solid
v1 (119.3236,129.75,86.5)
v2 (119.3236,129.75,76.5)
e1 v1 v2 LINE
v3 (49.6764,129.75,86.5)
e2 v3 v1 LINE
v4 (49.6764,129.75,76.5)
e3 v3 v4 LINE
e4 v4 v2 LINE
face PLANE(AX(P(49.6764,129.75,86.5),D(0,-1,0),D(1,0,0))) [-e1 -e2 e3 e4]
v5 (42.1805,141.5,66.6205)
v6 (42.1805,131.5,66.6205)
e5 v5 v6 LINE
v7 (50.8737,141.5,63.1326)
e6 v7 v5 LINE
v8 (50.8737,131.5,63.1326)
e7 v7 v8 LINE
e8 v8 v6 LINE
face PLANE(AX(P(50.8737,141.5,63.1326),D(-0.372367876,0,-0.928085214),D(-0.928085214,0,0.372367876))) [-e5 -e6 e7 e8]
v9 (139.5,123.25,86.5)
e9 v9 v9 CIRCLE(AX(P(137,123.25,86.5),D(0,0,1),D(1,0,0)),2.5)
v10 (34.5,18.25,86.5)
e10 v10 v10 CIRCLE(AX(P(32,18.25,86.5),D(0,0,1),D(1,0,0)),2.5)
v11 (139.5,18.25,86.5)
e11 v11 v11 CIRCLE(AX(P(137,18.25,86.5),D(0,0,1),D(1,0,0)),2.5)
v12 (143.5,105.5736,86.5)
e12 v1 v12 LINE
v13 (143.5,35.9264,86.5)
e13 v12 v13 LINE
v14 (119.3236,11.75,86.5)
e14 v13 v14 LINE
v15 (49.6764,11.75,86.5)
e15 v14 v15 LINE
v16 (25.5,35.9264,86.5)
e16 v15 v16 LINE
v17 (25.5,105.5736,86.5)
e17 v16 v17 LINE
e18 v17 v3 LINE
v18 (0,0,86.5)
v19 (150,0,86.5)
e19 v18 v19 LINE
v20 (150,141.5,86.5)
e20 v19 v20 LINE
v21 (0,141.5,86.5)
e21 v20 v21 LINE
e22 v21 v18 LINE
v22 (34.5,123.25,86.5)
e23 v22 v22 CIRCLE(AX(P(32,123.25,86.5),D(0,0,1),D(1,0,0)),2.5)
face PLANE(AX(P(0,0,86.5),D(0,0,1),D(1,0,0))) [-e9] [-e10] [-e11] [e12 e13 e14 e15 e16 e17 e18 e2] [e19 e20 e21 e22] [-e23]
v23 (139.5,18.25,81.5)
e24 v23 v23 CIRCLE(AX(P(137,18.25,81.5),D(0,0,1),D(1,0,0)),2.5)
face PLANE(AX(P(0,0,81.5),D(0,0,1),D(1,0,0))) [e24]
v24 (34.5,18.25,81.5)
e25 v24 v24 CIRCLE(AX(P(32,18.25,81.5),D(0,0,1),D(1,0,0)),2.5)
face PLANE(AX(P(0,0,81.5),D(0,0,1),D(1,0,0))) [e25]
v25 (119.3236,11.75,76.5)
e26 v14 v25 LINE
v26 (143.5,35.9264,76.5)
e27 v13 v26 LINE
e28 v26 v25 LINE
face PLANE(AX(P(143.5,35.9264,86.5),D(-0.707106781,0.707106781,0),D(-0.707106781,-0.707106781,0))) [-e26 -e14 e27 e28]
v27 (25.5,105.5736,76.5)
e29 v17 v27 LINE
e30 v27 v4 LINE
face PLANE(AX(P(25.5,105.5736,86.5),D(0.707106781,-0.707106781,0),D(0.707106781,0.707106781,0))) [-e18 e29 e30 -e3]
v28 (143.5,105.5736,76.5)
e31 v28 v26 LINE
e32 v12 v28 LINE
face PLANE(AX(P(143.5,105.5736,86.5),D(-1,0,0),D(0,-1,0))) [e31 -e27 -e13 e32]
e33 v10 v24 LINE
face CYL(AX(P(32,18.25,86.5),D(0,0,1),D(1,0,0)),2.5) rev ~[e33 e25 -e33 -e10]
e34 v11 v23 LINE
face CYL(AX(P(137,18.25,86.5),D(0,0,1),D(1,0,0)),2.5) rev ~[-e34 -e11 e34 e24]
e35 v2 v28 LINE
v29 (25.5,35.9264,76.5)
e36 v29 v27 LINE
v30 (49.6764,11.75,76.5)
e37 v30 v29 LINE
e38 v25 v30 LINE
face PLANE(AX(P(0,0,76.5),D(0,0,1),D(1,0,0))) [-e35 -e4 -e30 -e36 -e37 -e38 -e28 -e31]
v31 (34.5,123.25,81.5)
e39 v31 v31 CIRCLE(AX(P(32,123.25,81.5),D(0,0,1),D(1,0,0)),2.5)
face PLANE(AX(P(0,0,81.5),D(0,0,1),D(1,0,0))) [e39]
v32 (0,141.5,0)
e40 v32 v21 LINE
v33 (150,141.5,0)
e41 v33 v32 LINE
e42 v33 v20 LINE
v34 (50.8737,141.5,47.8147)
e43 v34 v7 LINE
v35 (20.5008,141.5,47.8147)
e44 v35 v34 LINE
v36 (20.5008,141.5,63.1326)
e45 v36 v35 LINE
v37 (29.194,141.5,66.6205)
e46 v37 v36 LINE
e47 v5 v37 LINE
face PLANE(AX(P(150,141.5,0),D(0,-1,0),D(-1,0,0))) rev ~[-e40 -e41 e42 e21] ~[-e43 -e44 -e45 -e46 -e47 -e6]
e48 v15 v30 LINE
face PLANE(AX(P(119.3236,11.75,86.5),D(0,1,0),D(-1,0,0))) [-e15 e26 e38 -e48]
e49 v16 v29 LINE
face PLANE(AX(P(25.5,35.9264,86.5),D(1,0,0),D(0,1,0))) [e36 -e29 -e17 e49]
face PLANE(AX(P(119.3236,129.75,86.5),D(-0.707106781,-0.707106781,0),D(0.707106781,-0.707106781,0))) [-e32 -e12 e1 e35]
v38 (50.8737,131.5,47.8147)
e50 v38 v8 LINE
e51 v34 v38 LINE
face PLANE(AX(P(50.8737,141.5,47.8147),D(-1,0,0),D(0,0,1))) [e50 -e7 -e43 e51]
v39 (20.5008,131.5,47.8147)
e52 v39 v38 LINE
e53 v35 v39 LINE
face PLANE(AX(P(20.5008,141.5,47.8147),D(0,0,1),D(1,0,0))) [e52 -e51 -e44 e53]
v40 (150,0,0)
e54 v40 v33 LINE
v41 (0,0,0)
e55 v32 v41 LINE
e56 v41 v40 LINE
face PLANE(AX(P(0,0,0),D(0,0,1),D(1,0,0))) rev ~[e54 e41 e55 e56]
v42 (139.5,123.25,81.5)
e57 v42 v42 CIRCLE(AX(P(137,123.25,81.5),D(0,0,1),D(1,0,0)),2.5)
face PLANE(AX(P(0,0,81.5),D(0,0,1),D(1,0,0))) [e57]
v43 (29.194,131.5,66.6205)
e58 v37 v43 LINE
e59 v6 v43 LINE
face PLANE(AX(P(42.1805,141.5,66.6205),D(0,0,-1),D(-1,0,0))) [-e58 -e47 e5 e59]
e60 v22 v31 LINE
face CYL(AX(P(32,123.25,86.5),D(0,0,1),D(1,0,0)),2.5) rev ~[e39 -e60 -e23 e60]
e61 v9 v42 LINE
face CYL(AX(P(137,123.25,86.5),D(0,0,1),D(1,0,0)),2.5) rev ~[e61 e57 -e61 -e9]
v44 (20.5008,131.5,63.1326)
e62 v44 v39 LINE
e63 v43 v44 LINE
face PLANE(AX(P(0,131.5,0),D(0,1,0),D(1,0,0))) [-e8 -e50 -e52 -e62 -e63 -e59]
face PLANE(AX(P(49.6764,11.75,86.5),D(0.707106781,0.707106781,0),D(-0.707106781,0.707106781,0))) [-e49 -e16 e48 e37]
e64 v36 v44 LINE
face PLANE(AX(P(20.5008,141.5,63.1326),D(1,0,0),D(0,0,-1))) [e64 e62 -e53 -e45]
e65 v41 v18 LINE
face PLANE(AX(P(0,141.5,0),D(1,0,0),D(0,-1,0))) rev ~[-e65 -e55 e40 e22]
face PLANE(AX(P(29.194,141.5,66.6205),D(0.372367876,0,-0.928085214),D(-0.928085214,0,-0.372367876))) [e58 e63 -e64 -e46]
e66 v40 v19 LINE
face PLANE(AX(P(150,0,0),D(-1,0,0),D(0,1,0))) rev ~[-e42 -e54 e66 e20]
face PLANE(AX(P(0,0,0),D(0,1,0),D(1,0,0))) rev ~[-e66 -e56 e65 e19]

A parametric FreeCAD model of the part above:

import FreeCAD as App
import Part
import Sketcher

V = App.Vector
Q = App.Units.Quantity

doc = App.newDocument("Part")
body = doc.addObject("PartDesign::Body", "Body")

# Sketch on XY plane
sketch1 = body.newObject("Sketcher::SketchObject", "Sketch")
sketch1.AttachmentSupport = (doc.getObject("XY_Plane"), [""])
sketch1.MapMode = "FlatFace"
sketch1.addGeometry([
    Part.LineSegment(V(0, 141.5, 0), V(0, 0, 0)),
    Part.LineSegment(V(0, 0, 0), V(150, 0, 0)),
    Part.LineSegment(V(150, 0, 0), V(150, 141.5, 0)),
    Part.LineSegment(V(150, 141.5, 0), V(0, 141.5, 0)),
], False)
sketch1.addConstraint([
    Sketcher.Constraint("Coincident", 0, 2, 1, 1),
    Sketcher.Constraint("Coincident", 1, 2, 2, 1),
    Sketcher.Constraint("Coincident", 2, 2, 3, 1),
    Sketcher.Constraint("Coincident", 3, 2, 0, 1),
    Sketcher.Constraint("Vertical", 0),
    Sketcher.Constraint("Horizontal", 1),
    Sketcher.Constraint("Vertical", 2),
    Sketcher.Constraint("Horizontal", 3),
    Sketcher.Constraint("Coincident", 0, 2, -1, 1),
    Sketcher.Constraint("DistanceX", 1, 1, 1, 2, Q("150 mm")),
    Sketcher.Constraint("DistanceY", 0, 2, 0, 1, Q("141.5 mm")),
])
pad1 = body.newObject("PartDesign::Pad", "Pad")
pad1.Profile = sketch1
pad1.Length = 86.5

# Sketch on XY plane
sketch2 = body.newObject("Sketcher::SketchObject", "Sketch001")
sketch2.AttachmentSupport = (doc.getObject("XY_Plane"), [""])
sketch2.MapMode = "FlatFace"
sketch2.AttachmentOffset = App.Placement(V(0, 0, 86.5), App.Rotation())
sketch2.addGeometry([
    Part.Circle(V(32, 123.25, 0), V(0, 0, 1), 2.5),
    Part.Circle(V(32, 18.25, 0), V(0, 0, 1), 2.5),
    Part.Circle(V(137, 18.25, 0), V(0, 0, 1), 2.5),
    Part.Circle(V(137, 123.25, 0), V(0, 0, 1), 2.5),
], False)
sketch2.addConstraint([
    Sketcher.Constraint("Equal", 0, 1),
    Sketcher.Constraint("Equal", 1, 2),
    Sketcher.Constraint("Equal", 2, 3),
    Sketcher.Constraint("Horizontal", 1, 3, 2, 3),
    Sketcher.Constraint("Horizontal", 0, 3, 3, 3),
    Sketcher.Constraint("Vertical", 0, 3, 1, 3),
    Sketcher.Constraint("Vertical", 2, 3, 3, 3),
    Sketcher.Constraint("Diameter", 0, Q("5 mm")),
    Sketcher.Constraint("DistanceY", 1, 3, 0, 3, Q("105 mm")),
    Sketcher.Constraint("DistanceX", 1, 3, 2, 3, Q("105 mm")),
    Sketcher.Constraint("DistanceX", -1, 1, 0, 3, Q("32 mm")),
    Sketcher.Constraint("DistanceY", -1, 1, 0, 3, Q("123.25 mm")),
])
pocket1 = body.newObject("PartDesign::Pocket", "Pocket")
pocket1.Profile = sketch2
pocket1.Length = 5

# Sketch on XY plane
sketch3 = body.newObject("Sketcher::SketchObject", "Sketch002")
sketch3.AttachmentSupport = (doc.getObject("XY_Plane"), [""])
sketch3.MapMode = "FlatFace"
sketch3.AttachmentOffset = App.Placement(V(0, 0, 86.5), App.Rotation())
sketch3.addGeometry([
    Part.LineSegment(V(49.6764, 11.75, 0), V(119.3236, 11.75, 0)),  # 0
    Part.LineSegment(V(119.3236, 11.75, 0), V(143.5, 35.9264, 0)),  # 1
    Part.LineSegment(V(143.5, 35.9264, 0), V(143.5, 105.5736, 0)),  # 2
    Part.LineSegment(V(143.5, 105.5736, 0), V(119.3236, 129.75, 0)),  # 3
    Part.LineSegment(V(119.3236, 129.75, 0), V(49.6764, 129.75, 0)),  # 4
    Part.LineSegment(V(49.6764, 129.75, 0), V(25.5, 105.5736, 0)),  # 5
    Part.LineSegment(V(25.5, 105.5736, 0), V(25.5, 35.9264, 0)),  # 6
    Part.LineSegment(V(25.5, 35.9264, 0), V(49.6764, 11.75, 0)),  # 7
], False)
sketch3.addConstraint([
    Sketcher.Constraint("Coincident", 0, 2, 1, 1),
    Sketcher.Constraint("Coincident", 1, 2, 2, 1),
    Sketcher.Constraint("Coincident", 2, 2, 3, 1),
    Sketcher.Constraint("Coincident", 3, 2, 4, 1),
    Sketcher.Constraint("Coincident", 4, 2, 5, 1),
    Sketcher.Constraint("Coincident", 5, 2, 6, 1),
    Sketcher.Constraint("Coincident", 6, 2, 7, 1),
    Sketcher.Constraint("Coincident", 7, 2, 0, 1),
    Sketcher.Constraint("Horizontal", 0),
    Sketcher.Constraint("Vertical", 2),
    Sketcher.Constraint("Horizontal", 4),
    Sketcher.Constraint("Vertical", 6),
    Sketcher.Constraint("Perpendicular", 1, 3),
    Sketcher.Constraint("Perpendicular", 3, 5),
    Sketcher.Constraint("Perpendicular", 5, 7),
    Sketcher.Constraint("Horizontal", 2, 2, 5, 2),
    Sketcher.Constraint("Horizontal", 1, 2, 6, 2),
    Sketcher.Constraint("Vertical", 0, 2, 3, 2),
    Sketcher.Constraint("Vertical", 4, 2, 7, 2),
    Sketcher.Constraint("Equal", 4, 2),
    Sketcher.Constraint("DistanceY", 0, 2, 3, 2, Q("118 mm")),
    Sketcher.Constraint("DistanceX", -1, 1, 1, 2, Q("143.5 mm")),
    Sketcher.Constraint("DistanceY", -1, 1, 0, 2, Q("11.75 mm")),
    Sketcher.Constraint("DistanceX", 0, 1, 0, 2, Q("69.6472 mm")),
])
pocket2 = body.newObject("PartDesign::Pocket", "Pocket001")
pocket2.Profile = sketch3
pocket2.Length = 10

# Sketch on XZ plane
sketch4 = body.newObject("Sketcher::SketchObject", "Sketch003")
sketch4.AttachmentSupport = (doc.getObject("XZ_Plane"), [""])
sketch4.MapMode = "FlatFace"
sketch4.AttachmentOffset = App.Placement(V(0, 0, -141.5), App.Rotation())
sketch4.addGeometry([
    Part.LineSegment(V(20.5008, 47.8147, 0), V(20.5008, 63.1326, 0)),  # 0
    Part.LineSegment(V(20.5008, 63.1326, 0), V(29.194, 66.6205, 0)),  # 1
    Part.LineSegment(V(29.194, 66.6205, 0), V(42.1805, 66.6205, 0)),  # 2
    Part.LineSegment(V(42.1805, 66.6205, 0), V(50.8737, 63.1326, 0)),  # 3
    Part.LineSegment(V(50.8737, 63.1326, 0), V(50.8737, 47.8147, 0)),  # 4
    Part.LineSegment(V(50.8737, 47.8147, 0), V(20.5008, 47.8147, 0)),  # 5
], False)
sketch4.addConstraint([
    Sketcher.Constraint("Coincident", 0, 2, 1, 1),
    Sketcher.Constraint("Coincident", 1, 2, 2, 1),
    Sketcher.Constraint("Coincident", 2, 2, 3, 1),
    Sketcher.Constraint("Coincident", 3, 2, 4, 1),
    Sketcher.Constraint("Coincident", 4, 2, 5, 1),
    Sketcher.Constraint("Coincident", 5, 2, 0, 1),
    Sketcher.Constraint("Vertical", 0),
    Sketcher.Constraint("Horizontal", 2),
    Sketcher.Constraint("Vertical", 4),
    Sketcher.Constraint("Horizontal", 5),
    Sketcher.Constraint("Horizontal", 0, 2, 3, 2),
    Sketcher.Constraint("Equal", 1, 3),
    Sketcher.Constraint("DistanceX", 5, 2, 5, 1, Q("30.373 mm")),
    Sketcher.Constraint("DistanceY", 0, 1, 0, 2, Q("15.318 mm")),
    Sketcher.Constraint("DistanceX", 2, 1, 2, 2, Q("12.9865 mm")),
    Sketcher.Constraint("DistanceX", -1, 1, 1, 2, Q("29.194 mm")),
    Sketcher.Constraint("DistanceY", 0, 2, 1, 2, Q("3.488 mm")),
    Sketcher.Constraint("DistanceY", -1, 1, 0, 2, Q("63.1326 mm")),
])
pocket3 = body.newObject("PartDesign::Pocket", "Pocket002")
pocket3.Profile = sketch4
pocket3.Length = 10
pocket3.Reversed = True

doc.recompute()
